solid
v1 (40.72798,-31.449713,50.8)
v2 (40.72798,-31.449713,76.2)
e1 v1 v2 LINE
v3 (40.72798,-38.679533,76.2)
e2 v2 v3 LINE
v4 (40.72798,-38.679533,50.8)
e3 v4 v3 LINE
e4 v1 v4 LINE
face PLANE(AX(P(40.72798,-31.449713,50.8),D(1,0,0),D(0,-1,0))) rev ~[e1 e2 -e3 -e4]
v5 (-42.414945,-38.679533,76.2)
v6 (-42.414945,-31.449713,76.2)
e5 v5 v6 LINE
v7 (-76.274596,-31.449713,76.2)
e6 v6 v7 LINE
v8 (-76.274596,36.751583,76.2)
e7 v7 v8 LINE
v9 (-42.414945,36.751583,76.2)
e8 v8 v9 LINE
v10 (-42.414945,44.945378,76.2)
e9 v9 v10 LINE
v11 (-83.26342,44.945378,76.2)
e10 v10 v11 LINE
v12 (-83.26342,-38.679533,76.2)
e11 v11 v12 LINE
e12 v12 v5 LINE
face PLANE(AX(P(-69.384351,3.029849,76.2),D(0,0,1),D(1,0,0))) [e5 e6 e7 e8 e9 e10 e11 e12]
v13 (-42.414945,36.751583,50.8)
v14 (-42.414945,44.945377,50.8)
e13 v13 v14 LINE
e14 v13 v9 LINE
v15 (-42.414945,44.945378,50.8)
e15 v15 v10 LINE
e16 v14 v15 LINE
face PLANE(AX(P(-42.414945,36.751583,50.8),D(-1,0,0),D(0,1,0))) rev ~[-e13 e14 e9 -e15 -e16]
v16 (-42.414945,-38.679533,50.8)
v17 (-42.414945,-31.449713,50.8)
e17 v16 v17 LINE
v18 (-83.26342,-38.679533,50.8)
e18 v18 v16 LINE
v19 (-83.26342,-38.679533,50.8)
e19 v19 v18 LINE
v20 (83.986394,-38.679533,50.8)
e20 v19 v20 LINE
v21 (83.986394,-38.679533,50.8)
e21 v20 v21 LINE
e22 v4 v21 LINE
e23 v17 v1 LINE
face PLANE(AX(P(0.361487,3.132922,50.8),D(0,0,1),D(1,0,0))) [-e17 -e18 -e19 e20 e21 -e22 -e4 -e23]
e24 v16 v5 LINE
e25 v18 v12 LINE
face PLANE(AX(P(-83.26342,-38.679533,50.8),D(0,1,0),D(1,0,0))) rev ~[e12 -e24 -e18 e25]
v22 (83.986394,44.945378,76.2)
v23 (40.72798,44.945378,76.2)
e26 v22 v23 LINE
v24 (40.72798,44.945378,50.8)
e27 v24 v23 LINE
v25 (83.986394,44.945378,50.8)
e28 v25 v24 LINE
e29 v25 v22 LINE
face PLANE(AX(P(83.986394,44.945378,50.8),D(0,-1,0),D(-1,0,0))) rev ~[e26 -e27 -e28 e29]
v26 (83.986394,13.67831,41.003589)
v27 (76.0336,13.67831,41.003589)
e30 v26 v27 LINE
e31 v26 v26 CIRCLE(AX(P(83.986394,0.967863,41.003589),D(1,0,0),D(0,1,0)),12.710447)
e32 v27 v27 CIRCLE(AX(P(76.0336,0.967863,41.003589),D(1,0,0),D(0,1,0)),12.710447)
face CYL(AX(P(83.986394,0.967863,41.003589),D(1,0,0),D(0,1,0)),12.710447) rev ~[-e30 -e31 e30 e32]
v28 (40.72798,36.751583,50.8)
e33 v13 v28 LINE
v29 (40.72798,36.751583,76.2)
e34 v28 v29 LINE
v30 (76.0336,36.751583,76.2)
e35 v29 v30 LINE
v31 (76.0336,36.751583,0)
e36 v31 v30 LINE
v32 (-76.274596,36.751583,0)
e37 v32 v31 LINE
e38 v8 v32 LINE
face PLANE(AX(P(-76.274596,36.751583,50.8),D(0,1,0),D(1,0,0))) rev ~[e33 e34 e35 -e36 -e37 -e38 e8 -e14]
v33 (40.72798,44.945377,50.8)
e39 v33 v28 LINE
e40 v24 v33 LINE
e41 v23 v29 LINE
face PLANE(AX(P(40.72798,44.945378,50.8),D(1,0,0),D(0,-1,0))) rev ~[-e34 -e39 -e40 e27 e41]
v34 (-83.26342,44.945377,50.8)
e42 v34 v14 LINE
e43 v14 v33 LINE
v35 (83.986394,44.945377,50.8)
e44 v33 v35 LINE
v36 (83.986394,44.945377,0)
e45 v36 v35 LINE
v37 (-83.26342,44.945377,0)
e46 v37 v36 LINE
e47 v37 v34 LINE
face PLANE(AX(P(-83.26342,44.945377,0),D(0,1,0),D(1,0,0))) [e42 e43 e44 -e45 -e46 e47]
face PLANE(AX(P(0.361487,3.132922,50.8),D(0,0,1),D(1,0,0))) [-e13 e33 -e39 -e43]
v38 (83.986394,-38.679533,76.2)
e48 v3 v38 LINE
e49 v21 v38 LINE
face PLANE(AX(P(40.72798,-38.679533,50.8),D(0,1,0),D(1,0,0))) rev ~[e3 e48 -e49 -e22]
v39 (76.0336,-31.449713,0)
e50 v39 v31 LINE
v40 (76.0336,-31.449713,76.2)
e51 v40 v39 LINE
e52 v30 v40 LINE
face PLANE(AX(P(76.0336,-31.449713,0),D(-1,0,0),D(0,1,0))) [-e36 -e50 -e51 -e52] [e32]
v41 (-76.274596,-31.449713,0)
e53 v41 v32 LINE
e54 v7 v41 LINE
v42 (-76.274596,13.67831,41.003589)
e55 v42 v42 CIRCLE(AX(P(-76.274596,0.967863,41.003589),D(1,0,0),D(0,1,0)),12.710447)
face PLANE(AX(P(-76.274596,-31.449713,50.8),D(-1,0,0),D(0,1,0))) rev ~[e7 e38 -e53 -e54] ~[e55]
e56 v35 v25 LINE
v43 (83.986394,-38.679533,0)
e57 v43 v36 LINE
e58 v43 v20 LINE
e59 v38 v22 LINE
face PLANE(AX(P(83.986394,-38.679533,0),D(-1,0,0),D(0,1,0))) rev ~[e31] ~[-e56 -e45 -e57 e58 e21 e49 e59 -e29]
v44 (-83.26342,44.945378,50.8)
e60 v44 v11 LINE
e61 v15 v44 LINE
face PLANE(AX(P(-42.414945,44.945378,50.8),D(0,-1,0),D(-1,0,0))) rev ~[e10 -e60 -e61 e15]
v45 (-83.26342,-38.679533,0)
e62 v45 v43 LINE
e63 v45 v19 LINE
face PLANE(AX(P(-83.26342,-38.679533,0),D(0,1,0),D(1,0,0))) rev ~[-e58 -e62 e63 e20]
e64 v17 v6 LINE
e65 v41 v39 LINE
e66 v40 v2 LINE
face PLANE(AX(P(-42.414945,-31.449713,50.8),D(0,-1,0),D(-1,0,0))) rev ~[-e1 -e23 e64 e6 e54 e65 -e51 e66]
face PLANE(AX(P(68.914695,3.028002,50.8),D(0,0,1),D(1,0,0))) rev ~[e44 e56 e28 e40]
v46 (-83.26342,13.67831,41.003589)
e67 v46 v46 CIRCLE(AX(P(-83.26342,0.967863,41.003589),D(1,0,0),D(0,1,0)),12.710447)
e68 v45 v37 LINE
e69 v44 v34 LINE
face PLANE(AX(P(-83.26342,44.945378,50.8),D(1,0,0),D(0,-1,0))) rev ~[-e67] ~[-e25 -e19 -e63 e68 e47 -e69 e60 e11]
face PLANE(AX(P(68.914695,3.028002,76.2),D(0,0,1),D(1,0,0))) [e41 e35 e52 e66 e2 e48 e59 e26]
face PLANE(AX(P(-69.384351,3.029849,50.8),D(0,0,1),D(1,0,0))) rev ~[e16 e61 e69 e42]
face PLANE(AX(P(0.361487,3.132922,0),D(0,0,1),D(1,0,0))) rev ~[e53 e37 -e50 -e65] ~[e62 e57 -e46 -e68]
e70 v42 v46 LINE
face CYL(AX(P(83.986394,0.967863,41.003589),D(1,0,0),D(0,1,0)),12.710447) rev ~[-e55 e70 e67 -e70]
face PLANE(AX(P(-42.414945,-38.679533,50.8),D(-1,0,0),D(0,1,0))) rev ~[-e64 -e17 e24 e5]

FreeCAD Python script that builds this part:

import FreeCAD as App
import Part
import Sketcher
from FreeCAD import Vector
Q = App.Units.Quantity


def add_polygon(sketch, points):
    """Adds a closed chain of lines whose ends are joined by coincident constraints."""
    first, n = sketch.GeometryCount, len(points)
    for a, b in zip(points, points[1:] + points[:1]):
        sketch.addGeometry(Part.LineSegment(App.Vector(*a, 0), App.Vector(*b, 0)), False)
    for i in range(n):
        sketch.addConstraint(Sketcher.Constraint("Coincident", first + i, 2, first + (i + 1) % n, 1))

doc = App.newDocument("Part")
body = doc.addObject("PartDesign::Body", "Body")

# Sketch on XY plane
sketch1 = body.newObject("Sketcher::SketchObject", "Sketch")
sketch1.AttachmentSupport = (doc.getObject("XY_Plane"), [""])
sketch1.MapMode = "FlatFace"
add_polygon(sketch1, [(-83.26342, 44.945377), (-83.26342, -38.679533), (83.986394, -38.679533), (83.986394, 44.945377)])  # lines 0-3
add_polygon(sketch1, [(76.0336, -31.449713), (-76.274596, -31.449713), (-76.274596, 36.751583), (76.0336, 36.751583)])  # lines 4-7
sketch1.addConstraint([
    Sketcher.Constraint("Vertical", 0),
    Sketcher.Constraint("Horizontal", 1),
    Sketcher.Constraint("Vertical", 2),
    Sketcher.Constraint("Horizontal", 3),
    Sketcher.Constraint("Horizontal", 4),
    Sketcher.Constraint("Vertical", 5),
    Sketcher.Constraint("Horizontal", 6),
    Sketcher.Constraint("Vertical", 7),
    Sketcher.Constraint("DistanceY", 0, 2, 0, 1, 83.624911),
    Sketcher.Constraint("DistanceX", -1, 1, 6, 2, 76.0336),
    Sketcher.Constraint("DistanceX", 1, 1, 1, 2, 167.249814),
    Sketcher.Constraint("DistanceX", 4, 2, 4, 1, 152.308196),
    Sketcher.Constraint("DistanceY", 5, 1, 5, 2, 68.201296),
    Sketcher.Constraint("DistanceX", 0, 2, -1, 1, 83.26342),
    Sketcher.Constraint("DistanceY", 0, 2, 4, 2, 7.22982),
    Sketcher.Constraint("DistanceY", 0, 2, -1, 1, 38.679533),
])
pad1 = body.newObject("PartDesign::Pad", "Pad")
pad1.Profile = sketch1
pad1.Length = Q("2 in")

# Sketch on XY plane
sketch2 = body.newObject("Sketcher::SketchObject", "Sketch001")
sketch2.AttachmentSupport = (doc.getObject("XY_Plane"), [""])
sketch2.MapMode = "FlatFace"
sketch2.AttachmentOffset = App.Placement(Vector(0, 0, 2 * 25.4), App.Rotation())
add_polygon(sketch2, [(-42.414945, 36.751583), (-42.414945, 44.945378), (-83.26342, 44.945378), (-83.26342, -38.679533), (-42.414945, -38.679533), (-42.414945, -31.449713), (-76.274596, -31.449713), (-76.274596, 36.751583)])  # lines 0-7
add_polygon(sketch2, [(83.986394, 44.945378), (40.72798, 44.945378), (40.72798, 36.751583), (76.0336, 36.751583), (76.0336, -31.449713), (40.72798, -31.449713), (40.72798, -38.679533), (83.986394, -38.679533)])  # lines 8-15
sketch2.addConstraint([
    Sketcher.Constraint("Vertical", 0),
    Sketcher.Constraint("Horizontal", 1),
    Sketcher.Constraint("Vertical", 2),
    Sketcher.Constraint("Horizontal", 3),
    Sketcher.Constraint("Vertical", 4),
    Sketcher.Constraint("Horizontal", 5),
    Sketcher.Constraint("Vertical", 6),
    Sketcher.Constraint("Horizontal", 7),
    Sketcher.Constraint("Horizontal", 8),
    Sketcher.Constraint("Vertical", 9),
    Sketcher.Constraint("Horizontal", 10),
    Sketcher.Constraint("Vertical", 11),
    Sketcher.Constraint("Horizontal", 12),
    Sketcher.Constraint("Vertical", 13),
    Sketcher.Constraint("Horizontal", 14),
    Sketcher.Constraint("Vertical", 15),
    Sketcher.Constraint("Horizontal", 1, 2, 8, 2),
    Sketcher.Constraint("Horizontal", 7, 2, 9, 2),
    Sketcher.Constraint("Horizontal", 5, 2, 11, 2),
    Sketcher.Constraint("Horizontal", 3, 2, 13, 2),
    Sketcher.Constraint("Vertical", 0, 2, 3, 2),
    Sketcher.Constraint("Vertical", 9, 2, 12, 2),
    Sketcher.Constraint("DistanceX", 5, 2, 5, 1, 33.859651),
    Sketcher.Constraint("DistanceX", 10, 1, 10, 2, 35.30562),
    Sketcher.Constraint("DistanceY", 2, 2, 2, 1, 83.624911),
    Sketcher.Constraint("DistanceY", 4, 1, 4, 2, 7.22982),
    Sketcher.Constraint("DistanceX", -1, 1, 10, 2, 76.0336),
    Sketcher.Constraint("DistanceX", 1, 2, 1, 1, 40.848475),
    Sketcher.Constraint("DistanceX", 8, 2, 8, 1, 43.258414),
    Sketcher.Constraint("DistanceY", 0, 1, 0, 2, 8.193795),
    Sketcher.Constraint("DistanceX", 1, 2, -1, 1, 83.26342),
    Sketcher.Constraint("DistanceY", -1, 1, 0, 2, 44.945378),
])
pad2 = body.newObject("PartDesign::Pad", "Pad001")
pad2.Profile = sketch2
pad2.Length = Q("1 in")

# Sketch on YZ plane
sketch3 = body.newObject("Sketcher::SketchObject", "Sketch002")
sketch3.AttachmentSupport = (doc.getObject("YZ_Plane"), [""])
sketch3.MapMode = "FlatFace"
sketch3.AttachmentOffset = App.Placement(Vector(0, 0, 83.986394), App.Rotation())
sketch3.addGeometry(Part.Circle(Vector(0.967863, 41.003589, 0), Vector(0, 0, 1), 12.710447), False)
sketch3.addConstraint([
    Sketcher.Constraint("Diameter", 0, 25.420894),
    Sketcher.Constraint("DistanceY", -1, 1, 0, 3, 41.003589),
    Sketcher.Constraint("DistanceX", -1, 1, 0, 3, 0.967863),
])
pocket1 = body.newObject("PartDesign::Pocket", "Pocket")
pocket1.Profile = sketch3
pocket1.Length = Q("8.9 in")

doc.recompute()
